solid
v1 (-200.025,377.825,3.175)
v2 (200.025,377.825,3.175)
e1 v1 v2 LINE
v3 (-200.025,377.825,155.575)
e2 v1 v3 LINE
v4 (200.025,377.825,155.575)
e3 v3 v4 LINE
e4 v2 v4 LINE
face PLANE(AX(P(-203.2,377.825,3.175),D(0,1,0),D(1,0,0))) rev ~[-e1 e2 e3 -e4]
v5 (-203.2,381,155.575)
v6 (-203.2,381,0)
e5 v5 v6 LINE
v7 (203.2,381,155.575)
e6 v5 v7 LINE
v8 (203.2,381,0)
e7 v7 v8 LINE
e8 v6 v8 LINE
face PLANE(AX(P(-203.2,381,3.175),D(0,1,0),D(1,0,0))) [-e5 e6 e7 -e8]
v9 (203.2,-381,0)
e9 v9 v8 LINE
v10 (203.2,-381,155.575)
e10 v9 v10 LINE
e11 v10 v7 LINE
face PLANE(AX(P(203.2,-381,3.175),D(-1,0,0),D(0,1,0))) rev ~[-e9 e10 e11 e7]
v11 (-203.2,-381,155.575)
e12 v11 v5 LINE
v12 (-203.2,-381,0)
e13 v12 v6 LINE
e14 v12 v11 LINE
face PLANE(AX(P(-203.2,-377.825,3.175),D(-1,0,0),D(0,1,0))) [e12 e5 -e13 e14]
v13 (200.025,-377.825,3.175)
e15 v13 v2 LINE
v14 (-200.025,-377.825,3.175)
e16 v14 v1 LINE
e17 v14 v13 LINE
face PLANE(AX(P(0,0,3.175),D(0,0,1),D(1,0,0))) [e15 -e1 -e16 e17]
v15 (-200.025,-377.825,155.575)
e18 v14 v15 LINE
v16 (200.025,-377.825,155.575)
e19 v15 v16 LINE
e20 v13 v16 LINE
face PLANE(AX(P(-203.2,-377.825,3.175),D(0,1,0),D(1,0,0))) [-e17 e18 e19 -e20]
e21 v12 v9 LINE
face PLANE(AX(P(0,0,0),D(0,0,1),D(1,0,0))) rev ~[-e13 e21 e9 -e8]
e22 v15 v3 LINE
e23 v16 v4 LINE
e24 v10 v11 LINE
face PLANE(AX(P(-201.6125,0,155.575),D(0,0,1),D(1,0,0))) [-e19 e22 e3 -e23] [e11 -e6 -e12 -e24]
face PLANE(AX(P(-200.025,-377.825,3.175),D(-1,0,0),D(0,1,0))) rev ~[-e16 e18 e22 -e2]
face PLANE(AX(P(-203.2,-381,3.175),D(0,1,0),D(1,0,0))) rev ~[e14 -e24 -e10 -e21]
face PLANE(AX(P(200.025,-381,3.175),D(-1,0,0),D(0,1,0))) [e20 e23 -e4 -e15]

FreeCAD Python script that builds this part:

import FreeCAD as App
import Part
import Sketcher
Q = App.Units.Quantity


def add_polygon(sketch, points):
    """Adds a closed chain of lines whose ends are joined by coincident constraints."""
    first, n = sketch.GeometryCount, len(points)
    for a, b in zip(points, points[1:] + points[:1]):
        sketch.addGeometry(Part.LineSegment(App.Vector(*a, 0), App.Vector(*b, 0)), False)
    for i in range(n):
        sketch.addConstraint(Sketcher.Constraint("Coincident", first + i, 2, first + (i + 1) % n, 1))

doc = App.newDocument("Part")
body = doc.addObject("PartDesign::Body", "Body")

# Sketch on XY plane
sketch1 = doc.addObject("Sketcher::SketchObject", "Sketch")
body.addObject(sketch1)
sketch1.AttachmentSupport = (doc.XY_Plane, [""])
sketch1.MapMode = "FlatFace"
add_polygon(sketch1, [(-203, 381), (-203, -381), (203, -381), (203, 381)])  # lines 0-3
sketch1.addConstraint(Sketcher.Constraint("Vertical", 0))
sketch1.addConstraint(Sketcher.Constraint("Horizontal", 1))
sketch1.addConstraint(Sketcher.Constraint("Vertical", 2))
sketch1.addConstraint(Sketcher.Constraint("Horizontal", 3))
sketch1.addConstraint(Sketcher.Constraint("Symmetric", 0, 2, 2, 2, -1, 1))
sketch1.addConstraint(Sketcher.Constraint("DistanceX", 1, 1, 1, 2, Q("16 in")))
sketch1.addConstraint(Sketcher.Constraint("DistanceY", 0, 2, 0, 1, Q("30 in")))
pad1 = doc.addObject("PartDesign::Pad", "Pad")
body.addObject(pad1)
pad1.Profile = sketch1
pad1.Length = Q("0.125 in")

# Sketch on XY plane
sketch2 = doc.addObject("Sketcher::SketchObject", "Sketch001")
body.addObject(sketch2)
sketch2.AttachmentSupport = (doc.XY_Plane, [""])
sketch2.MapMode = "FlatFace"
sketch2.AttachmentOffset = App.Placement(App.Vector(0, 0, 0.125 * 25.4), App.Rotation())
add_polygon(sketch2, [(-203.2, 381), (-203.2, 377.8), (203.2, 377.8), (203.2, 381)])  # lines 0-3
sketch2.addConstraint(Sketcher.Constraint("Vertical", 0))
sketch2.addConstraint(Sketcher.Constraint("Horizontal", 1))
sketch2.addConstraint(Sketcher.Constraint("Vertical", 2))
sketch2.addConstraint(Sketcher.Constraint("Horizontal", 3))
sketch2.addConstraint(Sketcher.Constraint("DistanceX", 1, 1, 1, 2, Q("16 in")))
sketch2.addConstraint(Sketcher.Constraint("DistanceX", 0, 2, -1, 1, Q("8 in")))
sketch2.addConstraint(Sketcher.Constraint("DistanceY", -1, 1, 2, 2, Q("15 in")))
sketch2.addConstraint(Sketcher.Constraint("DistanceY", 0, 2, 0, 1, Q("0.125 in")))
pad2 = doc.addObject("PartDesign::Pad", "Pad001")
body.addObject(pad2)
pad2.Profile = sketch2
pad2.Length = Q("6 in")

# Sketch on XY plane
sketch3 = doc.addObject("Sketcher::SketchObject", "Sketch002")
body.addObject(sketch3)
sketch3.AttachmentSupport = (doc.XY_Plane, [""])
sketch3.MapMode = "FlatFace"
sketch3.AttachmentOffset = App.Placement(App.Vector(0, 0, 0.125 * 25.4), App.Rotation())
add_polygon(sketch3, [(200, 377.8), (200, -381), (203.2, -381), (203.2, 377.8)])  # lines 0-3
sketch3.addConstraint(Sketcher.Constraint("Vertical", 0))
sketch3.addConstraint(Sketcher.Constraint("Horizontal", 1))
sketch3.addConstraint(Sketcher.Constraint("Vertical", 2))
sketch3.addConstraint(Sketcher.Constraint("Horizontal", 3))
sketch3.addConstraint(Sketcher.Constraint("DistanceY", 0, 2, -1, 1, Q("15 in")))
sketch3.addConstraint(Sketcher.Constraint("DistanceX", -1, 1, 1, 2, Q("8 in")))
sketch3.addConstraint(Sketcher.Constraint("DistanceX", 1, 1, 1, 2, Q("0.125 in")))
sketch3.addConstraint(Sketcher.Constraint("DistanceY", 0, 2, 0, 1, Q("29.875 in")))
pad3 = doc.addObject("PartDesign::Pad", "Pad002")
body.addObject(pad3)
pad3.Profile = sketch3
pad3.Length = Q("6 in")

# Sketch on XY plane
sketch4 = doc.addObject("Sketcher::SketchObject", "Sketch003")
body.addObject(sketch4)
sketch4.AttachmentSupport = (doc.XY_Plane, [""])
sketch4.MapMode = "FlatFace"
sketch4.AttachmentOffset = App.Placement(App.Vector(0, 0, 0.125 * 25.4), App.Rotation())
add_polygon(sketch4, [(-203.2, -377.8), (-203.2, -381), (200, -381), (200, -377.8)])  # lines 0-3
sketch4.addConstraint(Sketcher.Constraint("Vertical", 0))
sketch4.addConstraint(Sketcher.Constraint("Horizontal", 1))
sketch4.addConstraint(Sketcher.Constraint("Vertical", 2))
sketch4.addConstraint(Sketcher.Constraint("Horizontal", 3))
sketch4.addConstraint(Sketcher.Constraint("DistanceX", 0, 2, -1, 1, Q("8 in")))
sketch4.addConstraint(Sketcher.Constraint("DistanceY", 0, 2, -1, 1, Q("15 in")))
sketch4.addConstraint(Sketcher.Constraint("DistanceX", 1, 1, 1, 2, Q("15.875 in")))
sketch4.addConstraint(Sketcher.Constraint("DistanceY", 0, 2, 0, 1, Q("0.125 in")))
pad4 = doc.addObject("PartDesign::Pad", "Pad003")
body.addObject(pad4)
pad4.Profile = sketch4
pad4.Length = Q("6 in")

# Sketch on XY plane
sketch5 = doc.addObject("Sketcher::SketchObject", "Sketch004")
body.addObject(sketch5)
sketch5.AttachmentSupport = (doc.XY_Plane, [""])
sketch5.MapMode = "FlatFace"
sketch5.AttachmentOffset = App.Placement(App.Vector(0, 0, 0.125 * 25.4), App.Rotation())
add_polygon(sketch5, [(-203.2, 377.8), (-203.2, -377.8), (-200, -377.8), (-200, 377.8)])  # lines 0-3
sketch5.addConstraint(Sketcher.Constraint("Vertical", 0))
sketch5.addConstraint(Sketcher.Constraint("Horizontal", 1))
sketch5.addConstraint(Sketcher.Constraint("Vertical", 2))
sketch5.addConstraint(Sketcher.Constraint("Horizontal", 3))
sketch5.addConstraint(Sketcher.Constraint("DistanceX", 0, 2, -1, 1, Q("8 in")))
sketch5.addConstraint(Sketcher.Constraint("DistanceY", 0, 2, 0, 1, Q("29.75 in")))
sketch5.addConstraint(Sketcher.Constraint("DistanceX", 1, 1, 1, 2, Q("0.125 in")))
sketch5.addConstraint(Sketcher.Constraint("DistanceY", 0, 2, -1, 1, Q("14.875 in")))
pad5 = doc.addObject("PartDesign::Pad", "Pad004")
body.addObject(pad5)
pad5.Profile = sketch5
pad5.Length = Q("6 in")

doc.recompute()
